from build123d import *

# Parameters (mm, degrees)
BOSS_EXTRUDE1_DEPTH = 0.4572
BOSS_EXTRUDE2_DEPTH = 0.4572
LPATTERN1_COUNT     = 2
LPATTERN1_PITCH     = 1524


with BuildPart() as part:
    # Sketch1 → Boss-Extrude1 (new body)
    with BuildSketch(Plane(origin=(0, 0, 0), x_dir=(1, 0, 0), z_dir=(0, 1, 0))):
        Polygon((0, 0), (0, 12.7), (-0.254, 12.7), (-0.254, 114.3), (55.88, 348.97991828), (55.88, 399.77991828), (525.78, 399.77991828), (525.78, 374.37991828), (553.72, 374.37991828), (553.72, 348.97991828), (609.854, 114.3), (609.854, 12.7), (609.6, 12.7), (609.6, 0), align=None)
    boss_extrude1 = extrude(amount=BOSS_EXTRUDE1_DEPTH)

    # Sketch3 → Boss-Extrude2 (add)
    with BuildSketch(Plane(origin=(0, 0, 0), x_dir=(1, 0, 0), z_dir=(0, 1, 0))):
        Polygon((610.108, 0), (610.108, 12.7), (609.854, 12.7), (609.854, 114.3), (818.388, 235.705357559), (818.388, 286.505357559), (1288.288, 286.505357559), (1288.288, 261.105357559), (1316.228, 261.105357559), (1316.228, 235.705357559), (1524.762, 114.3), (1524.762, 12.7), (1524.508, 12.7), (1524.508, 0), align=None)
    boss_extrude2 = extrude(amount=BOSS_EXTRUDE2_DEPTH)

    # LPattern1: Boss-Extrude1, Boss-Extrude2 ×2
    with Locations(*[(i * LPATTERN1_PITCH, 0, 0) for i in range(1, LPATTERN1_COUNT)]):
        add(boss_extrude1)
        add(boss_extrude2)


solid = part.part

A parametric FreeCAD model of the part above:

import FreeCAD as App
import Part
import Sketcher
Q = App.Units.Quantity


def add_polygon(sketch, points):
    """Adds a closed chain of lines whose ends are joined by coincident constraints."""
    first, n = sketch.GeometryCount, len(points)
    for a, b in zip(points, points[1:] + points[:1]):
        sketch.addGeometry(Part.LineSegment(App.Vector(*a, 0), App.Vector(*b, 0)), False)
    for i in range(n):
        sketch.addConstraint(Sketcher.Constraint("Coincident", first + i, 2, first + (i + 1) % n, 1))

doc = App.newDocument("Part")
body = doc.addObject("PartDesign::Body", "Body")

# Sketch on XZ plane
sketch1 = doc.addObject("Sketcher::SketchObject", "Sketch")
body.addObject(sketch1)
sketch1.AttachmentSupport = (doc.XZ_Plane, [""])
sketch1.MapMode = "FlatFace"
add_polygon(sketch1, [(0, -12.7), (0, 0), (609.6, 0), (609.6, -12.7), (609.85, -12.7), (609.85, -114.3), (553.72, -348.98), (553.72, -374.38), (525.78, -374.38), (525.78, -399.78), (55.88, -399.78), (55.88, -348.98), (-0.25, -114.3), (-0.25, -12.7)])  # lines 0-13
sketch1.addConstraint(Sketcher.Constraint("Vertical", 0))
sketch1.addConstraint(Sketcher.Constraint("Horizontal", 1))
sketch1.addConstraint(Sketcher.Constraint("Vertical", 2))
sketch1.addConstraint(Sketcher.Constraint("Horizontal", 3))
sketch1.addConstraint(Sketcher.Constraint("Vertical", 4))
sketch1.addConstraint(Sketcher.Constraint("Vertical", 6))
sketch1.addConstraint(Sketcher.Constraint("Horizontal", 7))
sketch1.addConstraint(Sketcher.Constraint("Vertical", 8))
sketch1.addConstraint(Sketcher.Constraint("Horizontal", 9))
sketch1.addConstraint(Sketcher.Constraint("Vertical", 10))
sketch1.addConstraint(Sketcher.Constraint("Vertical", 12))
sketch1.addConstraint(Sketcher.Constraint("Horizontal", 13))
sketch1.addConstraint(Sketcher.Constraint("Coincident", 0, 2, -1, 1))
sketch1.addConstraint(Sketcher.Constraint("Horizontal", 5, 2, 10, 2))
sketch1.addConstraint(Sketcher.Constraint("Horizontal", 4, 2, 11, 2))
sketch1.addConstraint(Sketcher.Constraint("Horizontal", 3, 2, 12, 2))
sketch1.addConstraint(Sketcher.Constraint("Equal", 3, 13))
sketch1.addConstraint(Sketcher.Constraint("Equal", 6, 8))
sketch1.addConstraint(Sketcher.Constraint("Equal", 5, 11))
sketch1.addConstraint(Sketcher.Constraint("DistanceX", 1, 1, 1, 2, Q("24 in")))
sketch1.addConstraint(Sketcher.Constraint("DistanceY", 4, 2, 4, 1, Q("4 in")))
sketch1.addConstraint(Sketcher.Constraint("DistanceY", 6, 2, 6, 1, Q("1 in")))
sketch1.addConstraint(Sketcher.Constraint("DistanceX", 7, 2, 7, 1, Q("1.1 in")))
sketch1.addConstraint(Sketcher.Constraint("DistanceX", 9, 2, 9, 1, Q("18.5 in")))
sketch1.addConstraint(Sketcher.Constraint("DistanceY", 0, 1, 0, 2, Q("0.5 in")))
sketch1.addConstraint(Sketcher.Constraint("Distance", 5, Q("9.5 in")))
sketch1.addConstraint(Sketcher.Constraint("DistanceX", 3, 1, 3, 2, Q("0.01 in")))
pad1 = doc.addObject("PartDesign::Pad", "Pad")
body.addObject(pad1)
pad1.Profile = sketch1
pad1.Length = Q("0.018 in")
pad1.Reversed = True

# Sketch on XZ plane
sketch2 = doc.addObject("Sketcher::SketchObject", "Sketch001")
body.addObject(sketch2)
sketch2.AttachmentSupport = (doc.XZ_Plane, [""])
sketch2.MapMode = "FlatFace"
add_polygon(sketch2, [(610.108, -12.7), (610.108, 0), (1524.508, 0), (1524.508, -12.7), (1524.762, -12.7), (1524.762, -114.3), (1316.228, -235.705358), (1316.228, -261.105358), (1288.288, -261.105358), (1288.288, -286.505358), (818.388, -286.505358), (818.388, -235.705358), (609.854, -114.3), (609.854, -12.7)])  # lines 0-13
sketch2.addConstraint(Sketcher.Constraint("Vertical", 0))
sketch2.addConstraint(Sketcher.Constraint("Horizontal", 1))
sketch2.addConstraint(Sketcher.Constraint("Vertical", 2))
sketch2.addConstraint(Sketcher.Constraint("Horizontal", 3))
sketch2.addConstraint(Sketcher.Constraint("Vertical", 4))
sketch2.addConstraint(Sketcher.Constraint("Vertical", 6))
sketch2.addConstraint(Sketcher.Constraint("Horizontal", 7))
sketch2.addConstraint(Sketcher.Constraint("Vertical", 8))
sketch2.addConstraint(Sketcher.Constraint("Horizontal", 9))
sketch2.addConstraint(Sketcher.Constraint("Vertical", 10))
sketch2.addConstraint(Sketcher.Constraint("Vertical", 12))
sketch2.addConstraint(Sketcher.Constraint("Horizontal", 13))
sketch2.addConstraint(Sketcher.Constraint("PointOnObject", 0, 2, -1))
sketch2.addConstraint(Sketcher.Constraint("Horizontal", 5, 2, 10, 2))
sketch2.addConstraint(Sketcher.Constraint("Horizontal", 4, 2, 11, 2))
sketch2.addConstraint(Sketcher.Constraint("Horizontal", 3, 2, 12, 2))
sketch2.addConstraint(Sketcher.Constraint("Equal", 3, 13))
sketch2.addConstraint(Sketcher.Constraint("Equal", 6, 8))
sketch2.addConstraint(Sketcher.Constraint("Equal", 5, 11))
sketch2.addConstraint(Sketcher.Constraint("DistanceX", 1, 1, 1, 2, Q("36 in")))
sketch2.addConstraint(Sketcher.Constraint("DistanceY", 4, 2, 4, 1, Q("4 in")))
sketch2.addConstraint(Sketcher.Constraint("DistanceY", 6, 2, 6, 1, Q("1 in")))
sketch2.addConstraint(Sketcher.Constraint("DistanceX", 7, 2, 7, 1, Q("1.1 in")))
sketch2.addConstraint(Sketcher.Constraint("DistanceX", 9, 2, 9, 1, Q("18.5 in")))
sketch2.addConstraint(Sketcher.Constraint("DistanceY", 0, 1, 0, 2, Q("0.5 in")))
sketch2.addConstraint(Sketcher.Constraint("Distance", 5, Q("9.5 in")))
sketch2.addConstraint(Sketcher.Constraint("DistanceX", 3, 1, 3, 2, Q("0.01 in")))
sketch2.addConstraint(Sketcher.Constraint("DistanceX", -1, 1, 0, 2, Q("24.02 in")))
pad2 = doc.addObject("PartDesign::Pad", "Pad001")
body.addObject(pad2)
pad2.Profile = sketch2
pad2.Length = Q("0.018 in")
pad2.Reversed = True
doc.recompute()

linearpattern = doc.addObject("PartDesign::LinearPattern", "LinearPattern")
body.addObject(linearpattern)
linearpattern.Originals = [pad1, pad2]
linearpattern.Direction = (doc.X_Axis, [""])
linearpattern.Mode = "offset"
linearpattern.Offset = Q("60 in")
linearpattern.Occurrences = 2
body.Tip = linearpattern

doc.recompute()
